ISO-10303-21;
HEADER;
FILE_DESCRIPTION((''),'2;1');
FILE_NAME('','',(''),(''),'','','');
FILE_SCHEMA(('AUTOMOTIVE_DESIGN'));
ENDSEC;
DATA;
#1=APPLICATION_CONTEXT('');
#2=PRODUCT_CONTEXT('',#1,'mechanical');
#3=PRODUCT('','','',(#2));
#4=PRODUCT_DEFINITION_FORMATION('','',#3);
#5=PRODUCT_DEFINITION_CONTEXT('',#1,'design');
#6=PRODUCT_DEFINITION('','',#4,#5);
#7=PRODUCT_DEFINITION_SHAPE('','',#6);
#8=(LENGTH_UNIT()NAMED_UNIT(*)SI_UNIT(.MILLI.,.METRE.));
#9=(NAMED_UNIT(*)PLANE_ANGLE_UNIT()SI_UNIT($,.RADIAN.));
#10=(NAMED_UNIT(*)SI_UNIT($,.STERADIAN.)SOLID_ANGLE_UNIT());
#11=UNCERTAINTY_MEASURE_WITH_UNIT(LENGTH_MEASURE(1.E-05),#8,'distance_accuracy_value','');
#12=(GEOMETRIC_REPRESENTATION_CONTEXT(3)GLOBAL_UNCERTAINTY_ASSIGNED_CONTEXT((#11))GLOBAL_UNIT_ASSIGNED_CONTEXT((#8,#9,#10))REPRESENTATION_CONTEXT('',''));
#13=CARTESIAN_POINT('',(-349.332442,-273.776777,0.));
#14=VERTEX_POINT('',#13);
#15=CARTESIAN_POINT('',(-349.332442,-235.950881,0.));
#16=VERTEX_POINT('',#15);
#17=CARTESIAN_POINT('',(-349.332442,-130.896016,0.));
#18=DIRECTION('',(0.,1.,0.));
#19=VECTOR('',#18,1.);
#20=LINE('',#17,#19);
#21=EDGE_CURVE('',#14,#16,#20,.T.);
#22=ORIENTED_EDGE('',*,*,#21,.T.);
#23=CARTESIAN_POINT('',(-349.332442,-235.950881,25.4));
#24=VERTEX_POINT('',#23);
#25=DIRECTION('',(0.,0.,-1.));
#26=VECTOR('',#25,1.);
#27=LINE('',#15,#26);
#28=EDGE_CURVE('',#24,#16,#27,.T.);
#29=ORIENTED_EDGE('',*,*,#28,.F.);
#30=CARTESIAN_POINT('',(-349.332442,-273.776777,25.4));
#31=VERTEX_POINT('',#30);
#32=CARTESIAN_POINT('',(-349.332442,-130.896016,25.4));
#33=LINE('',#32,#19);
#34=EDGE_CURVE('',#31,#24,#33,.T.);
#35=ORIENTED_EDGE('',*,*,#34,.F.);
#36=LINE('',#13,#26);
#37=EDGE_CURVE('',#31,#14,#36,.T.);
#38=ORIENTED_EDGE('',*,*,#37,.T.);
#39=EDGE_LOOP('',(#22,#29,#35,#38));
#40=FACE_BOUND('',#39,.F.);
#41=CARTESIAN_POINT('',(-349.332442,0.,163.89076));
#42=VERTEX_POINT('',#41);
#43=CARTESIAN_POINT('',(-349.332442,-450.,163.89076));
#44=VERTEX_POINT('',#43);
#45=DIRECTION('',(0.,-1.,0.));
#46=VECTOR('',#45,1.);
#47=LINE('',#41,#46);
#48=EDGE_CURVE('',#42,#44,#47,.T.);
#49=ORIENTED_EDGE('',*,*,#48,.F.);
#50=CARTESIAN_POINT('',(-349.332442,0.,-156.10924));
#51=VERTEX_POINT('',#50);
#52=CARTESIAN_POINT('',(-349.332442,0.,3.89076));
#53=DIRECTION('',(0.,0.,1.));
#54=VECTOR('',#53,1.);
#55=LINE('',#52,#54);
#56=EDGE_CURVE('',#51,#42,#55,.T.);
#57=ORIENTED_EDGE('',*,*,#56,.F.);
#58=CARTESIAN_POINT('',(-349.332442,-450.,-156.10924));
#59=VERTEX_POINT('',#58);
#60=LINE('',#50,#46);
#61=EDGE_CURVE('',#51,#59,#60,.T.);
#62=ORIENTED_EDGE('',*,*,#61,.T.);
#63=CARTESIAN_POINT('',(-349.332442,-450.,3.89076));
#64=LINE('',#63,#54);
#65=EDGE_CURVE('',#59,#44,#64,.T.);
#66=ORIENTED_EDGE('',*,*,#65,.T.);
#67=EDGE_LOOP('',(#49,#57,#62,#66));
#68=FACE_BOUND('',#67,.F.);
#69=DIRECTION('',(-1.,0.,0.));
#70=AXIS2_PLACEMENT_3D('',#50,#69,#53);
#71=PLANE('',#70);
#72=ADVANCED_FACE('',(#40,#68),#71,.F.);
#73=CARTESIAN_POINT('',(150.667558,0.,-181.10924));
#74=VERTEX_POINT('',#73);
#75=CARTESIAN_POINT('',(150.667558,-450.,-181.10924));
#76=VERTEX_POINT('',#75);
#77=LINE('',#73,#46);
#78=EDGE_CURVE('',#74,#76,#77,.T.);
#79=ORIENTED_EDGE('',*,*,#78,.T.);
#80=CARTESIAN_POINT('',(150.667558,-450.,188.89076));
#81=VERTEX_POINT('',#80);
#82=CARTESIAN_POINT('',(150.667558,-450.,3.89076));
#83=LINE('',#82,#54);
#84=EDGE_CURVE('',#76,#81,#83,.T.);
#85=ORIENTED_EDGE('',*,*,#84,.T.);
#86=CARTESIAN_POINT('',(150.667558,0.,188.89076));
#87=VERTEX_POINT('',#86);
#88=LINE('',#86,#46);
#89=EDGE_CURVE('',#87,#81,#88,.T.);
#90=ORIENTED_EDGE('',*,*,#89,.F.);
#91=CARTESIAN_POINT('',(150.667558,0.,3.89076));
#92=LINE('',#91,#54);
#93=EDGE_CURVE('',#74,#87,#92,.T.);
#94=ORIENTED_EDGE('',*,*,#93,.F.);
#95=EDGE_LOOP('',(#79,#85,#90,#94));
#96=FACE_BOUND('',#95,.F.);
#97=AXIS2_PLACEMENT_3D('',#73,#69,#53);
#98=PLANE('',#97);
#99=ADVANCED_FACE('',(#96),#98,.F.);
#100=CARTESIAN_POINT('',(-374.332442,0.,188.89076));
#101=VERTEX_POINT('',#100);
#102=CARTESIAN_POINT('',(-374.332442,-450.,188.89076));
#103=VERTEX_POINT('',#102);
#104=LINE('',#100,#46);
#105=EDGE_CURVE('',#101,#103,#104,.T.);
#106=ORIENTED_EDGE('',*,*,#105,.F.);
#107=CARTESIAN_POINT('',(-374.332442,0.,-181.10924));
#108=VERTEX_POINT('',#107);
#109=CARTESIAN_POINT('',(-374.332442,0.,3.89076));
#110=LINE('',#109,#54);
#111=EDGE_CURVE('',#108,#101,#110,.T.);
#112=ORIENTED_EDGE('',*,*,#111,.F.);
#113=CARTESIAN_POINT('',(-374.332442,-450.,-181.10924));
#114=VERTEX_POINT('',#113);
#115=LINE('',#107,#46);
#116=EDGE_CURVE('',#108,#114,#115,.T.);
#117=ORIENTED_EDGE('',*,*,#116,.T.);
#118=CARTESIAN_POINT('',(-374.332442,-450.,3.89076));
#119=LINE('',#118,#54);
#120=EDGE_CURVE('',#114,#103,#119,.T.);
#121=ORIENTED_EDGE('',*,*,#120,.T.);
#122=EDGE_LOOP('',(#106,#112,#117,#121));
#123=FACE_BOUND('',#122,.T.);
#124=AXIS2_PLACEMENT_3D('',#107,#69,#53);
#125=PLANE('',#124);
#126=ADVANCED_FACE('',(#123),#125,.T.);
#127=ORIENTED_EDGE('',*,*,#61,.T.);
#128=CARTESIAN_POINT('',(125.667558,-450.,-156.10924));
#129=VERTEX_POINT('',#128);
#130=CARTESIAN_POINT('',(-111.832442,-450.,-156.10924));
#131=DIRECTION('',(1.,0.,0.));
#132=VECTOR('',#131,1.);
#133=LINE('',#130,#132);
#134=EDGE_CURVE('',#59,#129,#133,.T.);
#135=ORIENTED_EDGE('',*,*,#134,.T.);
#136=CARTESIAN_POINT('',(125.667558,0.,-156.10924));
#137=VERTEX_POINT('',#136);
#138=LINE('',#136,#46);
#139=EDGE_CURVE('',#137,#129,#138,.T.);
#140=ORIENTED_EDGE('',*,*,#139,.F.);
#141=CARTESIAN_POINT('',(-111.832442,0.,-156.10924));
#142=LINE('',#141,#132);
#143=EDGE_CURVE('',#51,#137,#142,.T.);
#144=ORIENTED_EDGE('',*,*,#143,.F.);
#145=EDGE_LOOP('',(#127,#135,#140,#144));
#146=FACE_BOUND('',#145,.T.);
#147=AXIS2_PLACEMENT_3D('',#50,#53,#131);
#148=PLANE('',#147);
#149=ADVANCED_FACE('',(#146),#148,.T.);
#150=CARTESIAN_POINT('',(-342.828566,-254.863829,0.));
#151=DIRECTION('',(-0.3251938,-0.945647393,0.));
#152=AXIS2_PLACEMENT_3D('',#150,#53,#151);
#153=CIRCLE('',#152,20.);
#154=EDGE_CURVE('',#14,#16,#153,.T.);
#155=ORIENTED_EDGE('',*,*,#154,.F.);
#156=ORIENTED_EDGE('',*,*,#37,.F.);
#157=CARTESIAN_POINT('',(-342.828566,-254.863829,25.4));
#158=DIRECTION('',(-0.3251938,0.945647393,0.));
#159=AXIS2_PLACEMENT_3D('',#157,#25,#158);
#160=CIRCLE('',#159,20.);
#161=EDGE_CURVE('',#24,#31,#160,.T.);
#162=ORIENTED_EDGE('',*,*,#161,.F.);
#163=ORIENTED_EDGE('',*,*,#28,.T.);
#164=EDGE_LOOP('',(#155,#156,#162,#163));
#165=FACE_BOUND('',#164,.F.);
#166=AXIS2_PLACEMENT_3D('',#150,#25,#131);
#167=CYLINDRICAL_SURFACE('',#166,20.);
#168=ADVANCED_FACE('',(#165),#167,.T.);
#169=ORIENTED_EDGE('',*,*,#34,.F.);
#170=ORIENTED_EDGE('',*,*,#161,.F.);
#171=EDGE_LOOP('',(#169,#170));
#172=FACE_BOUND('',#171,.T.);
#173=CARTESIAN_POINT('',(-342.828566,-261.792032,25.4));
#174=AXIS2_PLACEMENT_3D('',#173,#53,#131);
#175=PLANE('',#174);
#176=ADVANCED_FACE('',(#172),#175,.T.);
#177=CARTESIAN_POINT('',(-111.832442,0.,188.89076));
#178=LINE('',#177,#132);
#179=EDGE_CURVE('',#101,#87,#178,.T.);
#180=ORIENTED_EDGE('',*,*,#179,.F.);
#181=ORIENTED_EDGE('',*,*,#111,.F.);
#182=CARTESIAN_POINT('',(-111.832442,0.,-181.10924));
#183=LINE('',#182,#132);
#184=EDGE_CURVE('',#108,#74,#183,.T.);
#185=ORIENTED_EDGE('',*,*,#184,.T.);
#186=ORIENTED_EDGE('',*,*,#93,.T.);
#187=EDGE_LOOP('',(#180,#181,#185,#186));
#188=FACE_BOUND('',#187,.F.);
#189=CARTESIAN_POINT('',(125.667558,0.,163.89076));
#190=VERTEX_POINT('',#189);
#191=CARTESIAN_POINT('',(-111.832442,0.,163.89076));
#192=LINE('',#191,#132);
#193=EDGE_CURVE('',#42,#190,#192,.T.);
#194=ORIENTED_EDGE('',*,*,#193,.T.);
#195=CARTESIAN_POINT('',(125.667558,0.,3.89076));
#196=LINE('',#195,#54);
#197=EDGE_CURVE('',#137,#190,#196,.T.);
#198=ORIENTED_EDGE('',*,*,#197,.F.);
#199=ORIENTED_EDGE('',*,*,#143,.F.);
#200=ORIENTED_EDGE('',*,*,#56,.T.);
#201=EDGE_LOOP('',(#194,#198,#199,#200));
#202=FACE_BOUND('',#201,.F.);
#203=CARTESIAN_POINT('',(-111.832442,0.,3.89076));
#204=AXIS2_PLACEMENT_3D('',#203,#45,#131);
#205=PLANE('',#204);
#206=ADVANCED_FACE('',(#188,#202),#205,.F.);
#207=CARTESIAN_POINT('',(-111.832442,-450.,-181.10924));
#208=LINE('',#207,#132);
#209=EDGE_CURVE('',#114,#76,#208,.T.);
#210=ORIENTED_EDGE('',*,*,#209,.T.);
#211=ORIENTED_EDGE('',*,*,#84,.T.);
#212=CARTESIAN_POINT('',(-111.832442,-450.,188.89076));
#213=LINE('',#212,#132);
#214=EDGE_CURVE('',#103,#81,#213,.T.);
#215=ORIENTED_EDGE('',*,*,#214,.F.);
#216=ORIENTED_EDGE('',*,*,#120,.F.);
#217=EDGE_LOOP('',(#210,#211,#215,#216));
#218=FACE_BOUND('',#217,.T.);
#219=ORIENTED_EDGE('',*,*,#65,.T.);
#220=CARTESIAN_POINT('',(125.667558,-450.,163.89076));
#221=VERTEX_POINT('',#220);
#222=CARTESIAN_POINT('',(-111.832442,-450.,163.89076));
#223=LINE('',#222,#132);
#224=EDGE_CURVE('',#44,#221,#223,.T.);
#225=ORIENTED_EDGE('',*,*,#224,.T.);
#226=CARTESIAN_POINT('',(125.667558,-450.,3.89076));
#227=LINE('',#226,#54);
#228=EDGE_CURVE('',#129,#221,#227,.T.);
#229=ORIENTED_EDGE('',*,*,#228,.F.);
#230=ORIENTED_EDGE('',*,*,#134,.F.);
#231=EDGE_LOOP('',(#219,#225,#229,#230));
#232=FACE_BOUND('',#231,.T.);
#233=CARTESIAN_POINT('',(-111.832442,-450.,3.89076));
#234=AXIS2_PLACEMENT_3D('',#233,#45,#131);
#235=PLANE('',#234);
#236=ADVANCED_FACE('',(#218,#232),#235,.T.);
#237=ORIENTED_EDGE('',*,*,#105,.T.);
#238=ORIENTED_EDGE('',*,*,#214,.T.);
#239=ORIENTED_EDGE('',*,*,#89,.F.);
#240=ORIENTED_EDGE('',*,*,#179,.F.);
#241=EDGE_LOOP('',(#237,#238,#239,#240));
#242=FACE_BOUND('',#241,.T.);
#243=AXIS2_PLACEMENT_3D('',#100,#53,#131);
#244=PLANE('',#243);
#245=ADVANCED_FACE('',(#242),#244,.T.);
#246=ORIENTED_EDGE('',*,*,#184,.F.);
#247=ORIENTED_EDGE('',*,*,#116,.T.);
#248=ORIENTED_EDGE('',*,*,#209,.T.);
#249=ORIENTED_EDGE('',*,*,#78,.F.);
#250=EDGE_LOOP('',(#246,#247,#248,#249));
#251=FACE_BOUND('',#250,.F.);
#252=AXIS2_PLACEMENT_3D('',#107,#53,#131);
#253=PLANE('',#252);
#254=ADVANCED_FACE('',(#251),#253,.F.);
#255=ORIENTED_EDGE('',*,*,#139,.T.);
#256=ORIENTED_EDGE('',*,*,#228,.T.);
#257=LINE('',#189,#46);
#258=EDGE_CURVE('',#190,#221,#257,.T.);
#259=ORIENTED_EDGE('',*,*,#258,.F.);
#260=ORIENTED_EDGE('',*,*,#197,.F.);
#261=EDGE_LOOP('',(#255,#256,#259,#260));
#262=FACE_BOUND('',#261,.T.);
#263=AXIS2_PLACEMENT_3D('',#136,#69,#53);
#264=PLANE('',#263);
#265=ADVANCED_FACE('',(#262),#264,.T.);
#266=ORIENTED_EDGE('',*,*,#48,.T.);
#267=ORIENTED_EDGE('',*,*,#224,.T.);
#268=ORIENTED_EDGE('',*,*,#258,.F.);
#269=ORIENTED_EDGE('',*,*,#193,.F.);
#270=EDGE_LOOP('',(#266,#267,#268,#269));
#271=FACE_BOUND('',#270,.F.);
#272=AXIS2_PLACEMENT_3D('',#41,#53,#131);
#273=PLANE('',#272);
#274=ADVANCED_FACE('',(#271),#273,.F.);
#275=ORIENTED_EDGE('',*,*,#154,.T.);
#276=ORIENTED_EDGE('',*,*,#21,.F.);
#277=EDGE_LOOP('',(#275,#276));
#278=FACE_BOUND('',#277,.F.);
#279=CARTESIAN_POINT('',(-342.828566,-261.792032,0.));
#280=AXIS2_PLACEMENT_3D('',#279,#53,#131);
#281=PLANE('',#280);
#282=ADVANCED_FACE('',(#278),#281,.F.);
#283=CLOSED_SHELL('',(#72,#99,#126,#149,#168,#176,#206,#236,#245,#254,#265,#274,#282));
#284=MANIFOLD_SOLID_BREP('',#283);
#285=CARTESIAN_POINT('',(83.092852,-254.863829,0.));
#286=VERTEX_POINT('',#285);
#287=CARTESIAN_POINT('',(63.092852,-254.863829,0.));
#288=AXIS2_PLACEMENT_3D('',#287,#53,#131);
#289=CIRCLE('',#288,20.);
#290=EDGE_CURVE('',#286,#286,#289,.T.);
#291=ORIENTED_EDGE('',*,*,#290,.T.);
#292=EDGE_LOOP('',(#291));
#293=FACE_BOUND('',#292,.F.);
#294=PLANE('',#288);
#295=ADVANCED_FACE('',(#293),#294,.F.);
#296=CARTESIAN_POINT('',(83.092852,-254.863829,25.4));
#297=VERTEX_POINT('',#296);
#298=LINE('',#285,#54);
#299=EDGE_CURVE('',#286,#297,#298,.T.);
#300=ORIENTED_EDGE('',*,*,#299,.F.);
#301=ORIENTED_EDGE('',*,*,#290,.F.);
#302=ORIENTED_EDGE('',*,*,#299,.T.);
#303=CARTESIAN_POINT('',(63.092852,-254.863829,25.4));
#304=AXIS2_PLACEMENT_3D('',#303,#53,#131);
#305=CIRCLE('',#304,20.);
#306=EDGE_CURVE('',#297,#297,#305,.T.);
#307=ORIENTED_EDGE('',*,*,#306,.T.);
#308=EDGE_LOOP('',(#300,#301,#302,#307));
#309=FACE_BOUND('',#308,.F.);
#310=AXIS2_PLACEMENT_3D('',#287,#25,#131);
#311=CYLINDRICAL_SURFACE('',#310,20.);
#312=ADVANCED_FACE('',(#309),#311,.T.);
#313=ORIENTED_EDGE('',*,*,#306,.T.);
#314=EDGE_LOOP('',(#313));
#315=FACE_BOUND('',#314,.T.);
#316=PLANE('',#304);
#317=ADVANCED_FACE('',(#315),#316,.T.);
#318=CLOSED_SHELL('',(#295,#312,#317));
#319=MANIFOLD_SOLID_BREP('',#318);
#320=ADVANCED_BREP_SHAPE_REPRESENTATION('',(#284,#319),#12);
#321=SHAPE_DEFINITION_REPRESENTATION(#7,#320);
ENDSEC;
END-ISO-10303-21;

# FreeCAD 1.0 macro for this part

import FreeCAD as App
import Part
import Sketcher

V = App.Vector


def add_polygon(sketch, points):
    """Adds a closed chain of lines whose ends are joined by coincident constraints."""
    first, n = sketch.GeometryCount, len(points)
    for a, b in zip(points, points[1:] + points[:1]):
        sketch.addGeometry(Part.LineSegment(App.Vector(*a, 0), App.Vector(*b, 0)), False)
    for i in range(n):
        sketch.addConstraint(Sketcher.Constraint("Coincident", first + i, 2, first + (i + 1) % n, 1))

doc = App.newDocument("Part")
body = doc.addObject("PartDesign::Body", "Body")
body.AllowCompound = True

sketch1 = body.newObject("Sketcher::SketchObject", "Sketch")
sketch1.AttachmentSupport = (doc.getObject("XZ_Plane"), [""])
sketch1.MapMode = "FlatFace"
add_polygon(sketch1, [(-374.332442, 188.89076), (-374.332442, -181.10924), (150.667558, -181.10924), (150.667558, 188.89076)])
add_polygon(sketch1, [(125.667558, -156.10924), (-349.332442, -156.10924), (-349.332442, 163.89076), (125.667558, 163.89076)])
sketch1.addConstraint(Sketcher.Constraint("Vertical", 0))
sketch1.addConstraint(Sketcher.Constraint("Horizontal", 1))
sketch1.addConstraint(Sketcher.Constraint("Vertical", 2))
sketch1.addConstraint(Sketcher.Constraint("Horizontal", 3))
sketch1.addConstraint(Sketcher.Constraint("Horizontal", 4))
sketch1.addConstraint(Sketcher.Constraint("Vertical", 5))
sketch1.addConstraint(Sketcher.Constraint("Horizontal", 6))
sketch1.addConstraint(Sketcher.Constraint("Vertical", 7))
sketch1.addConstraint(Sketcher.Constraint("DistanceX", 1, 1, 1, 2, 525.0))
sketch1.addConstraint(Sketcher.Constraint("DistanceX", 4, 2, 4, 1, 475.0))
sketch1.addConstraint(Sketcher.Constraint("DistanceY", 0, 2, 0, 1, 370.0))
sketch1.addConstraint(Sketcher.Constraint("DistanceY", 5, 1, 5, 2, 320.0))
sketch1.addConstraint(Sketcher.Constraint("DistanceX", 0, 2, 4, 2, 25.0))
sketch1.addConstraint(Sketcher.Constraint("DistanceY", 0, 2, 4, 2, 25.0))
sketch1.addConstraint(Sketcher.Constraint("DistanceX", 0, 2, -1, 1, 374.332442))
sketch1.addConstraint(Sketcher.Constraint("DistanceY", 0, 2, -1, 1, 181.10924))
pad1 = body.newObject("PartDesign::Pad", "Pad")
pad1.Profile = sketch1
pad1.Length = 450

sketch2 = body.newObject("Sketcher::SketchObject", "Sketch001")
sketch2.AttachmentSupport = (doc.getObject("XY_Plane"), [""])
sketch2.MapMode = "FlatFace"
sketch2.addGeometry(Part.Circle(V(-342.828566, -254.863829, 0), V(0, 0, 1), 20), False)
sketch2.addGeometry(Part.Circle(V(63.092852, -254.863829, 0), V(0, 0, 1), 20), False)
sketch2.addConstraint(Sketcher.Constraint("Equal", 0, 1))
sketch2.addConstraint(Sketcher.Constraint("Horizontal", 0, 3, 1, 3))
sketch2.addConstraint(Sketcher.Constraint("Diameter", 0, 40.0))
sketch2.addConstraint(Sketcher.Constraint("DistanceY", 0, 3, -1, 1, 254.863829))
sketch2.addConstraint(Sketcher.Constraint("DistanceX", 0, 3, 1, 3, 405.921418))
sketch2.addConstraint(Sketcher.Constraint("DistanceX", 0, 3, -1, 1, 342.828566))
pad2 = body.newObject("PartDesign::Pad", "Pad001")
pad2.Profile = sketch2
pad2.Length = 25.4

doc.recompute()
